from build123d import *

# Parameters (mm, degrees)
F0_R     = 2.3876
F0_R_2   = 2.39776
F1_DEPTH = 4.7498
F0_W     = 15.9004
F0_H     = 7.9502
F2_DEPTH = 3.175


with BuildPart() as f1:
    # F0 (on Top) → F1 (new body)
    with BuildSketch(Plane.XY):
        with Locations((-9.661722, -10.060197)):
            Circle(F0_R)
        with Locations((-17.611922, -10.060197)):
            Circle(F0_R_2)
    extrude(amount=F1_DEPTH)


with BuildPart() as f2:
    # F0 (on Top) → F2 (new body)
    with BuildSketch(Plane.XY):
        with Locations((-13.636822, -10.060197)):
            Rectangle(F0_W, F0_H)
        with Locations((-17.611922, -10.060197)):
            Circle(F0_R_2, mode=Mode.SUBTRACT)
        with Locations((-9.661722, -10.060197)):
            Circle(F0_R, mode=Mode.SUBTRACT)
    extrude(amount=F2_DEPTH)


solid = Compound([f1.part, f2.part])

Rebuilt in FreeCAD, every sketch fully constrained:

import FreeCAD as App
import Part
import Sketcher

V = App.Vector
Q = App.Units.Quantity

doc = App.newDocument("Part")
body = doc.addObject("PartDesign::Body", "Body")
body.AllowCompound = True

# Sketch on XY plane
sketch1 = body.newObject("Sketcher::SketchObject", "Sketch")
sketch1.AttachmentSupport = (doc.getObject("XY_Plane"), [""])
sketch1.MapMode = "FlatFace"
sketch1.addGeometry(Part.Circle(V(-9.7, -10.1, 0), V(0, 0, 1), 2.4), False)
sketch1.addGeometry(Part.Circle(V(-17.6, -10.1, 0), V(0, 0, 1), 2.4), False)
sketch1.addConstraint(Sketcher.Constraint("Horizontal", 0, 3, 1, 3))
sketch1.addConstraint(Sketcher.Constraint("Diameter", 0, Q("0.188 in")))
sketch1.addConstraint(Sketcher.Constraint("Diameter", 1, Q("0.1888 in")))
sketch1.addConstraint(Sketcher.Constraint("DistanceX", 1, 3, 0, 3, Q("0.313 in")))
sketch1.addConstraint(Sketcher.Constraint("DistanceX", 0, 3, -1, 1, 9.661722))
sketch1.addConstraint(Sketcher.Constraint("DistanceY", 0, 3, -1, 1, 10.060197))
pad1 = body.newObject("PartDesign::Pad", "Pad")
pad1.Profile = sketch1
pad1.Length = Q("0.187 in")
body2 = doc.addObject("PartDesign::Body", "Body001")

# Sketch on XY plane
sketch2 = body2.newObject("Sketcher::SketchObject", "Sketch001")
sketch2.AttachmentSupport = (doc.getObject("XY_Plane001"), [""])
sketch2.MapMode = "FlatFace"
sketch2.addGeometry(Part.LineSegment(V(-21.6, -6.1, 0), V(-21.6, -14, 0)), False)
sketch2.addGeometry(Part.LineSegment(V(-21.6, -14, 0), V(-5.7, -14, 0)), False)
sketch2.addGeometry(Part.LineSegment(V(-5.7, -14, 0), V(-5.7, -6.1, 0)), False)
sketch2.addGeometry(Part.LineSegment(V(-5.7, -6.1, 0), V(-21.6, -6.1, 0)), False)
sketch2.addGeometry(Part.Circle(V(-17.6, -10.1, 0), V(0, 0, 1), 2.4), False)
sketch2.addGeometry(Part.Circle(V(-9.7, -10.1, 0), V(0, 0, 1), 2.4), False)
sketch2.addConstraint(Sketcher.Constraint("Coincident", 0, 2, 1, 1))
sketch2.addConstraint(Sketcher.Constraint("Coincident", 1, 2, 2, 1))
sketch2.addConstraint(Sketcher.Constraint("Coincident", 2, 2, 3, 1))
sketch2.addConstraint(Sketcher.Constraint("Coincident", 3, 2, 0, 1))
sketch2.addConstraint(Sketcher.Constraint("Vertical", 0))
sketch2.addConstraint(Sketcher.Constraint("Horizontal", 1))
sketch2.addConstraint(Sketcher.Constraint("Vertical", 2))
sketch2.addConstraint(Sketcher.Constraint("Horizontal", 3))
sketch2.addConstraint(Sketcher.Constraint("Horizontal", 4, 3, 5, 3))
sketch2.addConstraint(Sketcher.Constraint("Diameter", 5, Q("0.188 in")))
sketch2.addConstraint(Sketcher.Constraint("Diameter", 4, Q("0.1888 in")))
sketch2.addConstraint(Sketcher.Constraint("DistanceX", 1, 1, 1, 2, Q("0.626 in")))
sketch2.addConstraint(Sketcher.Constraint("DistanceY", 0, 2, 0, 1, Q("0.313 in")))
sketch2.addConstraint(Sketcher.Constraint("DistanceX", 4, 3, 5, 3, Q("0.313 in")))
sketch2.addConstraint(Sketcher.Constraint("DistanceX", 0, 2, 4, 3, Q("0.1565 in")))
sketch2.addConstraint(Sketcher.Constraint("DistanceY", 0, 2, 4, 3, Q("0.1565 in")))
sketch2.addConstraint(Sketcher.Constraint("DistanceX", 4, 3, -1, 1, 17.611922))
sketch2.addConstraint(Sketcher.Constraint("DistanceY", 4, 3, -1, 1, 10.060197))
pad2 = body2.newObject("PartDesign::Pad", "Pad001")
pad2.Profile = sketch2
pad2.Length = Q("0.125 in")

doc.recompute()
